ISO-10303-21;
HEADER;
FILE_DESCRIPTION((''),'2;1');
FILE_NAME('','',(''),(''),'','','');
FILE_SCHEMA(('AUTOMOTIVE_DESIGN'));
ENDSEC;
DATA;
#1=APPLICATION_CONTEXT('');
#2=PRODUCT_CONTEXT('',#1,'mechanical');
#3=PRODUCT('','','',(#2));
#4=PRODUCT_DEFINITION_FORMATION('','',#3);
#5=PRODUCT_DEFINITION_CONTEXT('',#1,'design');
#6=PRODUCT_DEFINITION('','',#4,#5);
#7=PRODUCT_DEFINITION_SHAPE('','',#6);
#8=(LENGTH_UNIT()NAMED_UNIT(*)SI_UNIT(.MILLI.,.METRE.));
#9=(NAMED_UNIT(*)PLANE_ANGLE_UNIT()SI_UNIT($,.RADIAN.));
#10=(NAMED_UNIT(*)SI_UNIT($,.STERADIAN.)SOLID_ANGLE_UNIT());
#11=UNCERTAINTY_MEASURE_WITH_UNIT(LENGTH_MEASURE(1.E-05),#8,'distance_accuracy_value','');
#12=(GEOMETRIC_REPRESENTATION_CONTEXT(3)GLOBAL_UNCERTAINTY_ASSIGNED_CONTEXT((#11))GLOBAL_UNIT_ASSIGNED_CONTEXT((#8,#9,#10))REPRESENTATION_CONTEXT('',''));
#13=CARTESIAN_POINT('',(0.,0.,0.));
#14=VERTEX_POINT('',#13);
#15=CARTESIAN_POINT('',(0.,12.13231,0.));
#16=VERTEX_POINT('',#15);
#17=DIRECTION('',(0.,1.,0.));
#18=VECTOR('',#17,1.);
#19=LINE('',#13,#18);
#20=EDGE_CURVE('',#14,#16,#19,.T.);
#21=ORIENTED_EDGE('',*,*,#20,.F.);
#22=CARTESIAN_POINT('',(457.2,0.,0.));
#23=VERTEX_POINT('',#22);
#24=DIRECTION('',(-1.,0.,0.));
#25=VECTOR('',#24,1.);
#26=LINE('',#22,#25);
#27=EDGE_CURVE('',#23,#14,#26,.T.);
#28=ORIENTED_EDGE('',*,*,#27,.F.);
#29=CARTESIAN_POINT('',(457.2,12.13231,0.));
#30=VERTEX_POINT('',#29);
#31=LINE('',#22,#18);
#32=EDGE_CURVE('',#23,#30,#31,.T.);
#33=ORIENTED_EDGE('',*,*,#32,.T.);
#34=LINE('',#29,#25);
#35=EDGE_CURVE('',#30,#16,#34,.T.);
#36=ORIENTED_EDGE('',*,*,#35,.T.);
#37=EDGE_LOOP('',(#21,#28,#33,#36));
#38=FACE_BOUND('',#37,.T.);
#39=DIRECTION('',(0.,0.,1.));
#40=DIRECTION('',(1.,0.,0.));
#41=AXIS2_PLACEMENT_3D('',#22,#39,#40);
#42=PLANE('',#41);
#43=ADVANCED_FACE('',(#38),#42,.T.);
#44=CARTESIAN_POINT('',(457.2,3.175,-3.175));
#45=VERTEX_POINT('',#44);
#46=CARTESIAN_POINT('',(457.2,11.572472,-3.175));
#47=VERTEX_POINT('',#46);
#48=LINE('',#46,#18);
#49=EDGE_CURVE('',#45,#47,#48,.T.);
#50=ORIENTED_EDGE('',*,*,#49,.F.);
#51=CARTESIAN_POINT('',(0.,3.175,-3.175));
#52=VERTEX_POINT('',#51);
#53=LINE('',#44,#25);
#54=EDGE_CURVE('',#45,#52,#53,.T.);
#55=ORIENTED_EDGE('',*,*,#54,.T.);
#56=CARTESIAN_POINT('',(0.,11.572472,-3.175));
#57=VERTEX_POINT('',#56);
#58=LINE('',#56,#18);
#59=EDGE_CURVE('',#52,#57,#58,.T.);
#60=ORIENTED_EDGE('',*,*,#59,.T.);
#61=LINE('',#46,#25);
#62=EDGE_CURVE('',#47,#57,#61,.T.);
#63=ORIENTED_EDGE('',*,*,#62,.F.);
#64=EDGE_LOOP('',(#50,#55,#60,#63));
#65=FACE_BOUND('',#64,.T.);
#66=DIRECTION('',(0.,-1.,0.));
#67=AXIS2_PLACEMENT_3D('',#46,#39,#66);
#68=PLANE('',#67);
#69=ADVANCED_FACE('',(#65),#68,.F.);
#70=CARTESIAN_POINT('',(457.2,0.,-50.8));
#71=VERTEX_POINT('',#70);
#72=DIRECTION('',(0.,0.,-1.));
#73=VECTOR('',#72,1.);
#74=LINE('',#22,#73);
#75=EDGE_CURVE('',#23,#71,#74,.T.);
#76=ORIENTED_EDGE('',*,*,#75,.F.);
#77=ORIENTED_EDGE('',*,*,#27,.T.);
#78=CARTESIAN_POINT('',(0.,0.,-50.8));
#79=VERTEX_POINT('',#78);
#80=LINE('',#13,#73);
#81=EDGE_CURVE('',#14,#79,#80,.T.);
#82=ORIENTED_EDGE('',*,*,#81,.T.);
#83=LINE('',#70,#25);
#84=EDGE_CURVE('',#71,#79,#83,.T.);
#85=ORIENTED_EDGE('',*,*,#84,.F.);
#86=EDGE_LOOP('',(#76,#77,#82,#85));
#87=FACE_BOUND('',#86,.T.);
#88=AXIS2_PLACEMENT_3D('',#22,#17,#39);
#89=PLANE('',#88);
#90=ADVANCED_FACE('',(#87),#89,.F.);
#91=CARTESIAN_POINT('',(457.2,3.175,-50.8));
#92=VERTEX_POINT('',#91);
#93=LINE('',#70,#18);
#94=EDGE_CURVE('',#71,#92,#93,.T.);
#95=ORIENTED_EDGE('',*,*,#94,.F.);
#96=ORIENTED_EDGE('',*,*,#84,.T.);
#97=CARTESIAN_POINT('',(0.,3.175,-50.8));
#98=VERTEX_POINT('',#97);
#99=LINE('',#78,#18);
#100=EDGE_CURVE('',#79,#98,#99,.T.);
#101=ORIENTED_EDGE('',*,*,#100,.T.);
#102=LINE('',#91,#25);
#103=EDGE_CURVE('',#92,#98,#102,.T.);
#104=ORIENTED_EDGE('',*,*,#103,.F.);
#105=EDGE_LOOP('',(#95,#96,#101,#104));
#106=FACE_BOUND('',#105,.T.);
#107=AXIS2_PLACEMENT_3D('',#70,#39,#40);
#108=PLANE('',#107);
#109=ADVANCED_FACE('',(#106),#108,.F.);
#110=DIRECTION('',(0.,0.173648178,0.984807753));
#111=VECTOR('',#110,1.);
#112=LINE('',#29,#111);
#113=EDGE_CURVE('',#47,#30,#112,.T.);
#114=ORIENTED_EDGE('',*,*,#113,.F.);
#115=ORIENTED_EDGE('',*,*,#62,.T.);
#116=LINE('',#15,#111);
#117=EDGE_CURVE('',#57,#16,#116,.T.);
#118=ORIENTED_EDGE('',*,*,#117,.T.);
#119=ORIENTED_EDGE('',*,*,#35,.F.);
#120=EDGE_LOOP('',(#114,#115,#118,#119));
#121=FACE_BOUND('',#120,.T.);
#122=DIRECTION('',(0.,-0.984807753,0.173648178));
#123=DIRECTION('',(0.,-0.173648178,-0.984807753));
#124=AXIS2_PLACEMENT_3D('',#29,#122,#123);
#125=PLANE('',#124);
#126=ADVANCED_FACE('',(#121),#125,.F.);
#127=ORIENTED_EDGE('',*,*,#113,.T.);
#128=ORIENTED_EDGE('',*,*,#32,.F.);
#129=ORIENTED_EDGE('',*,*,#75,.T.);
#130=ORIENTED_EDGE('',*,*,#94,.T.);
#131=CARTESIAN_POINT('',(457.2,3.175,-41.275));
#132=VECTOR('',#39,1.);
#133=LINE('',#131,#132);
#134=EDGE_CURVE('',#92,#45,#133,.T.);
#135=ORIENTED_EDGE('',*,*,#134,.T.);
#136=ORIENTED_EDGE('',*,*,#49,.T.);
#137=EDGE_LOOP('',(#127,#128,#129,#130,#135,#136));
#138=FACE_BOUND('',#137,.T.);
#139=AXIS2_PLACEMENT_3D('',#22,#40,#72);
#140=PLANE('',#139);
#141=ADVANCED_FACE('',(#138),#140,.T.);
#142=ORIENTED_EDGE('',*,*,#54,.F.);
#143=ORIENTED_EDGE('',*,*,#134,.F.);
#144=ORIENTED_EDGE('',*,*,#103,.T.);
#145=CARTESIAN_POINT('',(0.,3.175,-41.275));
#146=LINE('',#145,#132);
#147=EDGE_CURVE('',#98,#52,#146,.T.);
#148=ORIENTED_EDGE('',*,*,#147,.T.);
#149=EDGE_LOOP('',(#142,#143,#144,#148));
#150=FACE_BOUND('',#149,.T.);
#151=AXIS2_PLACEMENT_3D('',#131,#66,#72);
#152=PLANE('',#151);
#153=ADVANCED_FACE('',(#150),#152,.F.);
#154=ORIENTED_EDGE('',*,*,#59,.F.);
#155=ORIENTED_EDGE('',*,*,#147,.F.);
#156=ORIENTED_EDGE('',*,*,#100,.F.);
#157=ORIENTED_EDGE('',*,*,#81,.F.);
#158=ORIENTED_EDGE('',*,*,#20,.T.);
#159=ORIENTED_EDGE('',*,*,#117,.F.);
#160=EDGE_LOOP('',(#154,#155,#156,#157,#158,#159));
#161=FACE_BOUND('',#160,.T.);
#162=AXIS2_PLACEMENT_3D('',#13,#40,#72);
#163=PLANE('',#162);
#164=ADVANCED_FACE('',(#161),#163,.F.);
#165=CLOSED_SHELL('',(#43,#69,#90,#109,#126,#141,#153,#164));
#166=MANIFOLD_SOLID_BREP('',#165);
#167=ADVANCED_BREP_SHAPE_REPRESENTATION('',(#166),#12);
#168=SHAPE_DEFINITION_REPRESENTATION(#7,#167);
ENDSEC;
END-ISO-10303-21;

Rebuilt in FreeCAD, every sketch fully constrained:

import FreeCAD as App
import Part
import Sketcher
from FreeCAD import Vector
Q = App.Units.Quantity

doc = App.newDocument("Part")
params = doc.addObject("Spreadsheet::Sheet", "Params")
for row, (alias, value) in enumerate([
    ("sketch1_height", "2 in"),
    ("pad1_length", "18 in"),
    ("sketch2_height", "2 in"),
    ("sketch2_height2", "1.875 in"),
    ("pocket1_length", "18 in"),
], start=1):
    params.set(f"A{row}", alias)
    params.set(f"B{row}", "=" + value)
    params.setAlias(f"B{row}", alias)

body = doc.addObject("PartDesign::Body", "Body")

# Sketch on YZ plane
sketch1 = body.newObject("Sketcher::SketchObject", "Sketch")
sketch1.AttachmentSupport = (doc.getObject("YZ_Plane"), [""])
sketch1.MapMode = "FlatFace"
sketch1.addGeometry(Part.LineSegment(Vector(12, 0, 0), Vector(0, 0, 0)), False)
sketch1.addGeometry(Part.LineSegment(Vector(0, 0, 0), Vector(0, -51, 0)), False)
sketch1.addGeometry(Part.LineSegment(Vector(0, -51, 0), Vector(12, -51, 0)), False)
sketch1.addGeometry(Part.LineSegment(Vector(12, -51, 0), Vector(12, 0, 0)), False)
sketch1.addConstraint(Sketcher.Constraint("Coincident", 0, 2, 1, 1))
sketch1.addConstraint(Sketcher.Constraint("Coincident", 1, 2, 2, 1))
sketch1.addConstraint(Sketcher.Constraint("Coincident", 2, 2, 3, 1))
sketch1.addConstraint(Sketcher.Constraint("Coincident", 3, 2, 0, 1))
sketch1.addConstraint(Sketcher.Constraint("Horizontal", 0))
sketch1.addConstraint(Sketcher.Constraint("Vertical", 1))
sketch1.addConstraint(Sketcher.Constraint("Horizontal", 2))
sketch1.addConstraint(Sketcher.Constraint("Vertical", 3))
sketch1.addConstraint(Sketcher.Constraint("Coincident", 0, 2, -1, 1))
sketch1.addConstraint(Sketcher.Constraint("DistanceY", 1, 2, 1, 1, Q("2 in")))
sketch1.addConstraint(Sketcher.Constraint("DistanceX", 0, 2, 0, 1, Q("12.13231 mm")))
sketch1.setExpression("Constraints[9]", "Params.sketch1_height")
pad1 = body.newObject("PartDesign::Pad", "Pad")
pad1.Profile = sketch1
pad1.setExpression("Length", "Params.pad1_length")

# Sketch on YZ plane
sketch2 = body.newObject("Sketcher::SketchObject", "Sketch001")
sketch2.AttachmentSupport = (doc.getObject("YZ_Plane"), [""])
sketch2.MapMode = "FlatFace"
sketch2.addGeometry(Part.LineSegment(Vector(12.1, 0, 0), Vector(12.1, -50.8, 0)), False)
sketch2.addGeometry(Part.LineSegment(Vector(12.1, -50.8, 0), Vector(3.2, -50.8, 0)), False)
sketch2.addGeometry(Part.LineSegment(Vector(3.2, -50.8, 0), Vector(3.2, -3.2, 0)), False)
sketch2.addGeometry(Part.LineSegment(Vector(3.2, -3.2, 0), Vector(11.6, -3.2, 0)), False)
sketch2.addGeometry(Part.LineSegment(Vector(11.6, -3.2, 0), Vector(12.1, 0, 0)), False)
sketch2.addConstraint(Sketcher.Constraint("Coincident", 0, 2, 1, 1))
sketch2.addConstraint(Sketcher.Constraint("Coincident", 1, 2, 2, 1))
sketch2.addConstraint(Sketcher.Constraint("Coincident", 2, 2, 3, 1))
sketch2.addConstraint(Sketcher.Constraint("Coincident", 3, 2, 4, 1))
sketch2.addConstraint(Sketcher.Constraint("Coincident", 4, 2, 0, 1))
sketch2.addConstraint(Sketcher.Constraint("Vertical", 0))
sketch2.addConstraint(Sketcher.Constraint("Horizontal", 1))
sketch2.addConstraint(Sketcher.Constraint("Vertical", 2))
sketch2.addConstraint(Sketcher.Constraint("Horizontal", 3))
sketch2.addConstraint(Sketcher.Constraint("PointOnObject", 4, 2, -1))
sketch2.addConstraint(Sketcher.Constraint("DistanceY", 0, 2, 0, 1, Q("2 in")))
sketch2.addConstraint(Sketcher.Constraint("Angle", 4, Q("80 deg")))
sketch2.addConstraint(Sketcher.Constraint("DistanceY", 2, 1, 2, 2, Q("1.875 in")))
sketch2.addConstraint(Sketcher.Constraint("DistanceX", -1, 1, 1, 2, Q("0.125 in")))
sketch2.addConstraint(Sketcher.Constraint("DistanceX", 1, 2, 1, 1, Q("8.95731 mm")))
sketch2.setExpression("Constraints[10]", "Params.sketch2_height")
sketch2.setExpression("Constraints[12]", "Params.sketch2_height2")
pocket1 = body.newObject("PartDesign::Pocket", "Pocket")
pocket1.Profile = sketch2
pocket1.setExpression("Length", "Params.pocket1_length")
pocket1.Reversed = True

doc.recompute()
